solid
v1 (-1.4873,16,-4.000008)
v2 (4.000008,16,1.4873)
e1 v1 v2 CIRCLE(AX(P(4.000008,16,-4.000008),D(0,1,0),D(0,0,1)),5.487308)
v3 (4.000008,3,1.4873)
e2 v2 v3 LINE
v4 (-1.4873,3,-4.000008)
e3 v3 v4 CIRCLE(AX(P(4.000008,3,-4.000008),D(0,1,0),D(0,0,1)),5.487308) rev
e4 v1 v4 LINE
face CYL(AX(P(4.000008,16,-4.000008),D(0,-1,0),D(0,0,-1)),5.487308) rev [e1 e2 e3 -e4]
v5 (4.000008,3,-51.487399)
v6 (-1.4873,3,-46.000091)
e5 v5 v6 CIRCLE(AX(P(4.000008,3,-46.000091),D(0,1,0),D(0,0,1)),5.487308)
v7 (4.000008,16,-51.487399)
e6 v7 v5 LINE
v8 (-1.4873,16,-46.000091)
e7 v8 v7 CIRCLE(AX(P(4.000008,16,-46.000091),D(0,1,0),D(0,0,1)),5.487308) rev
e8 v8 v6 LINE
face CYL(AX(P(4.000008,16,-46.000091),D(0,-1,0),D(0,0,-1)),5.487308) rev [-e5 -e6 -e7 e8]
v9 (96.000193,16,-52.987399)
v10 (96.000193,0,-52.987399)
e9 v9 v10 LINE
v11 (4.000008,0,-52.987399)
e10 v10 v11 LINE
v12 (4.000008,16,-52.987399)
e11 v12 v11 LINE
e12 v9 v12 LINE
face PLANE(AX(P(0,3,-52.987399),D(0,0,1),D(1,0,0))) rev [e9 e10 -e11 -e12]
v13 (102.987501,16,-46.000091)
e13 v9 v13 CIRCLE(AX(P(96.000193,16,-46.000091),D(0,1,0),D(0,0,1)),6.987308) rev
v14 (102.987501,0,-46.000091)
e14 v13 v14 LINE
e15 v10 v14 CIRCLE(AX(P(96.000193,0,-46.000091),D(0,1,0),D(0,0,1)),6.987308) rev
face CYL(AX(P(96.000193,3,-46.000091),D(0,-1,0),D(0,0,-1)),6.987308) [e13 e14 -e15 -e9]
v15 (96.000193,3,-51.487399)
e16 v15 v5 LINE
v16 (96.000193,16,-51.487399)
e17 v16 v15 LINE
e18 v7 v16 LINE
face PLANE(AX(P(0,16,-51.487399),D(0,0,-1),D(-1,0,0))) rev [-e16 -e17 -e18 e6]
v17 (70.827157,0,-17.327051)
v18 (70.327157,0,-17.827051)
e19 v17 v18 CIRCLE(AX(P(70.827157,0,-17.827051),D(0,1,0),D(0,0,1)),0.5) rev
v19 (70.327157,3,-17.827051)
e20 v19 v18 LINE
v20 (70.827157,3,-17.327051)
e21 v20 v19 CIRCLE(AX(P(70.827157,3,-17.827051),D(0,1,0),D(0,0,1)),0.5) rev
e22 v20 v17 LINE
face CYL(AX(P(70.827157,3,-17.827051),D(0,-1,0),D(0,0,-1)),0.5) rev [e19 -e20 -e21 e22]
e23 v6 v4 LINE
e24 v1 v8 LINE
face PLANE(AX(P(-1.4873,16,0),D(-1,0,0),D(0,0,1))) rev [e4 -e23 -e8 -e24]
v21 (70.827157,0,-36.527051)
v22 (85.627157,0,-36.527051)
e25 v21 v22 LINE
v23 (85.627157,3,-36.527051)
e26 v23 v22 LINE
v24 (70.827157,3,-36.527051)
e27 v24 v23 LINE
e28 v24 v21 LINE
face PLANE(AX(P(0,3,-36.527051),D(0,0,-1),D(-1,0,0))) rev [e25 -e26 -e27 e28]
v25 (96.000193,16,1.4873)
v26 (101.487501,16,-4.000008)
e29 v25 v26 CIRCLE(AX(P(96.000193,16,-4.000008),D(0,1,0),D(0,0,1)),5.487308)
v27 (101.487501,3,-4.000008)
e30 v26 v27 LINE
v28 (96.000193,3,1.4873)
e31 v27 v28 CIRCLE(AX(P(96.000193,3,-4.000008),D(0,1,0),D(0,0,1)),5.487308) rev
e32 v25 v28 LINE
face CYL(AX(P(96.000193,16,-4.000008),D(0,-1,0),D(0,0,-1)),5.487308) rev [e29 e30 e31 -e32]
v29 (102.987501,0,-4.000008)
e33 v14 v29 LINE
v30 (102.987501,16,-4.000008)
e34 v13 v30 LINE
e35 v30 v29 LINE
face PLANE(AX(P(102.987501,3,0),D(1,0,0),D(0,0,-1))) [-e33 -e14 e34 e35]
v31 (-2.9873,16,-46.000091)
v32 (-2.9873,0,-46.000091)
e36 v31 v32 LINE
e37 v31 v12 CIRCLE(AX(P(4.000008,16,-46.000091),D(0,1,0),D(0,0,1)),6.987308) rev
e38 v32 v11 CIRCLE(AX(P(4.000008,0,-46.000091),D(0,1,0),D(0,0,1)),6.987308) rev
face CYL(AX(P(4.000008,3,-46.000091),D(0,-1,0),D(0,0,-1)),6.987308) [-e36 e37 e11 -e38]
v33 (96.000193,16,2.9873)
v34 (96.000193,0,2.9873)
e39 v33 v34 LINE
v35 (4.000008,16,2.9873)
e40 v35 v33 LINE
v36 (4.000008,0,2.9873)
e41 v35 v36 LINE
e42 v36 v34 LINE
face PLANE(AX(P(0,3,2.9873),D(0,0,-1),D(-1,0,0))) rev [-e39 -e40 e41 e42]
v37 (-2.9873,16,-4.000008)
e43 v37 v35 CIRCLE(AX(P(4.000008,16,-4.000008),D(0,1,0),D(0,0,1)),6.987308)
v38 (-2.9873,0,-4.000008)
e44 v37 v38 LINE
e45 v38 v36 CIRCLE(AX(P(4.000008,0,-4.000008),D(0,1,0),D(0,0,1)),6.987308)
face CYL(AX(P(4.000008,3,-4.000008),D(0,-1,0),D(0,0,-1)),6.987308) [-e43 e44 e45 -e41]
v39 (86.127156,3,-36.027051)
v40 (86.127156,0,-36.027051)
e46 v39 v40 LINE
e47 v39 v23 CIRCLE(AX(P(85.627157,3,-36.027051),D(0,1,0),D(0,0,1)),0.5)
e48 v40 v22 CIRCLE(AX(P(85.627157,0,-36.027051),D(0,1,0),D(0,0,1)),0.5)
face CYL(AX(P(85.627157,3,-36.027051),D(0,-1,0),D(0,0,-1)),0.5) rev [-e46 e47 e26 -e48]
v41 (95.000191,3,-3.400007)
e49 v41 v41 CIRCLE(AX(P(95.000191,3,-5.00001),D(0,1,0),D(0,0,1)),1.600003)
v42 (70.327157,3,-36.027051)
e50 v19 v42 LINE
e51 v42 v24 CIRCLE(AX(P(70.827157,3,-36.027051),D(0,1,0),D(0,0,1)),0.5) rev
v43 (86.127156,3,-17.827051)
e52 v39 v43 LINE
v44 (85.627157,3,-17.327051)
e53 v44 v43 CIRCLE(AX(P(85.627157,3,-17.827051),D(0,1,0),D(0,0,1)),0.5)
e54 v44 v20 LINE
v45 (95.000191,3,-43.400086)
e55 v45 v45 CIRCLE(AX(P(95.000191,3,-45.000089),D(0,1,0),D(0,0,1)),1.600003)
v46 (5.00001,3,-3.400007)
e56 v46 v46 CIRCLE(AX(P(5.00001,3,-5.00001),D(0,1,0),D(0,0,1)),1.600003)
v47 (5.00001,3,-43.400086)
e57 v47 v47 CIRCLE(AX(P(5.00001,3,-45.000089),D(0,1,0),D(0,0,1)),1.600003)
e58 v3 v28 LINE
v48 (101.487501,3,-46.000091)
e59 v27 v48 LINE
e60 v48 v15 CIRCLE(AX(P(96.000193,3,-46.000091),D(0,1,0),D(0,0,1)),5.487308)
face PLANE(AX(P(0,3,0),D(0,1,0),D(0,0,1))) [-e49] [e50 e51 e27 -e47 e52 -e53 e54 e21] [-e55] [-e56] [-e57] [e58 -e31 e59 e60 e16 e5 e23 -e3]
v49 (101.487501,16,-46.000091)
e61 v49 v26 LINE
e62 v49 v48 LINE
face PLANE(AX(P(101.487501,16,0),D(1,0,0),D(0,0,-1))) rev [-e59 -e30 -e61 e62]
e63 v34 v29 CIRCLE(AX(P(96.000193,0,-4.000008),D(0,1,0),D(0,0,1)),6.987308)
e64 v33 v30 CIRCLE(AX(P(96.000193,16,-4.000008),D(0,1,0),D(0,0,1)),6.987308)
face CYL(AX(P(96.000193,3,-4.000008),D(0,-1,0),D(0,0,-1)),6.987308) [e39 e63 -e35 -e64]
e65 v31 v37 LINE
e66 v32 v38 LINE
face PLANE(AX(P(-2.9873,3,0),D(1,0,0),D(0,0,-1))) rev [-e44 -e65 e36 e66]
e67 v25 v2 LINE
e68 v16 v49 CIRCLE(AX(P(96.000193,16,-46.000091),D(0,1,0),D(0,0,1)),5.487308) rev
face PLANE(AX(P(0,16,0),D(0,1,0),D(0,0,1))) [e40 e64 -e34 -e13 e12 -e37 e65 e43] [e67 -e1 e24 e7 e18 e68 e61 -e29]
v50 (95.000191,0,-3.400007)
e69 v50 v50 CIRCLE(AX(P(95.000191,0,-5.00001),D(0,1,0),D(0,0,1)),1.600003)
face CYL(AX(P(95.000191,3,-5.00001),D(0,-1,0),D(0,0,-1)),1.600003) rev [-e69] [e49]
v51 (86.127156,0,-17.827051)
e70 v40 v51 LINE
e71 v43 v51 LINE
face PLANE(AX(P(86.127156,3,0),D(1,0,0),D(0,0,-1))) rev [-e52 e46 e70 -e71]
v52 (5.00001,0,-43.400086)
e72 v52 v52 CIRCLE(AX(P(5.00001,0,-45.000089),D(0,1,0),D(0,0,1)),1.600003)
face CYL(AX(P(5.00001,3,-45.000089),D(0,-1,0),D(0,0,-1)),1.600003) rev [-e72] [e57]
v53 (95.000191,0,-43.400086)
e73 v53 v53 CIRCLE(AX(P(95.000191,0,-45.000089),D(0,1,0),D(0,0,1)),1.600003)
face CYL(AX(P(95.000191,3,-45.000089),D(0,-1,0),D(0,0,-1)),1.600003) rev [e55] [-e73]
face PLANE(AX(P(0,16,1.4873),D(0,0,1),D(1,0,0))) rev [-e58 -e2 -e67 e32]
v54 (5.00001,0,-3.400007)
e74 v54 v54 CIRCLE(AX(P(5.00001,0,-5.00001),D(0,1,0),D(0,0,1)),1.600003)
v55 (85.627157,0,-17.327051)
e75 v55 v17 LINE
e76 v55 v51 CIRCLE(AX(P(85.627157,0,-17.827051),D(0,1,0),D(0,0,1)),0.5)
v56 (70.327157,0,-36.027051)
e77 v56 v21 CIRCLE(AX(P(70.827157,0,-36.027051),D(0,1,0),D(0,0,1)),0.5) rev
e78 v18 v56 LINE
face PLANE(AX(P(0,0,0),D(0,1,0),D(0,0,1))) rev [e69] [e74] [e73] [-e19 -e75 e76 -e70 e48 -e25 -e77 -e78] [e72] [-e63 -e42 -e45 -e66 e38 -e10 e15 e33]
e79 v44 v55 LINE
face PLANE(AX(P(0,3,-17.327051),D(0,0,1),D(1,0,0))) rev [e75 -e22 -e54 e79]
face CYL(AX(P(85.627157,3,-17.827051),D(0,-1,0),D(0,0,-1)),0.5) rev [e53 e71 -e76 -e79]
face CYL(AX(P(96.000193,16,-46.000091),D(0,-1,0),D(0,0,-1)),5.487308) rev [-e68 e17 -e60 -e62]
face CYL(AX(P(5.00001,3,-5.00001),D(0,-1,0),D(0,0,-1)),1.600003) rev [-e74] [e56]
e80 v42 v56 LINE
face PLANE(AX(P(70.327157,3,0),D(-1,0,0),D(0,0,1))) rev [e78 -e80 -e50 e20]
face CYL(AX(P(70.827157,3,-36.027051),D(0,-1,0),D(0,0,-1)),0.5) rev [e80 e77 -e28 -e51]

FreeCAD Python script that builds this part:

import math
import FreeCAD as App
import Part
import Sketcher

doc = App.newDocument("Part")
body = doc.addObject("PartDesign::Body", "Body")

# Sketch on XZ plane
sketch1 = body.newObject("Sketcher::SketchObject", "Sketch")
sketch1.AttachmentSupport = (doc.getObject("XZ_Plane"), [""])
sketch1.MapMode = "FlatFace"
sketch1.addGeometry(Part.LineSegment(App.Vector(96, -52.99, 0), App.Vector(4, -52.99, 0)), False)
sketch1.addGeometry(Part.ArcOfCircle(Part.Circle(App.Vector(4, -46, 0), App.Vector(0, 0, 1), 6.99), math.radians(-180), math.radians(-90)), False)
sketch1.addGeometry(Part.LineSegment(App.Vector(-2.99, -46, 0), App.Vector(-2.99, -4, 0)), False)
sketch1.addGeometry(Part.ArcOfCircle(Part.Circle(App.Vector(4, -4, 0), App.Vector(0, 0, 1), 6.99), math.radians(90), math.radians(180)), False)
sketch1.addGeometry(Part.LineSegment(App.Vector(4, 2.99, 0), App.Vector(96, 2.99, 0)), False)
sketch1.addGeometry(Part.ArcOfCircle(Part.Circle(App.Vector(96, -4, 0), App.Vector(0, 0, 1), 6.99), math.radians(0), math.radians(90)), False)
sketch1.addGeometry(Part.LineSegment(App.Vector(102.99, -4, 0), App.Vector(102.99, -46, 0)), False)
sketch1.addGeometry(Part.ArcOfCircle(Part.Circle(App.Vector(96, -46, 0), App.Vector(0, 0, 1), 6.99), math.radians(-90), math.radians(0)), False)
sketch1.addGeometry(Part.Circle(App.Vector(5, -5, 0), App.Vector(0, 0, 1), 1.6), False)
sketch1.addGeometry(Part.Circle(App.Vector(95, -5, 0), App.Vector(0, 0, 1), 1.6), False)
sketch1.addGeometry(Part.Circle(App.Vector(5, -45, 0), App.Vector(0, 0, 1), 1.6), False)
sketch1.addGeometry(Part.ArcOfCircle(Part.Circle(App.Vector(85.63, -17.83, 0), App.Vector(0, 0, 1), 0.5), math.radians(0), math.radians(90)), False)
sketch1.addGeometry(Part.LineSegment(App.Vector(85.63, -17.33, 0), App.Vector(70.83, -17.33, 0)), False)
sketch1.addGeometry(Part.ArcOfCircle(Part.Circle(App.Vector(70.83, -17.83, 0), App.Vector(0, 0, 1), 0.5), math.radians(90), math.radians(180)), False)
sketch1.addGeometry(Part.LineSegment(App.Vector(70.33, -17.83, 0), App.Vector(70.33, -36.03, 0)), False)
sketch1.addGeometry(Part.ArcOfCircle(Part.Circle(App.Vector(70.83, -36.03, 0), App.Vector(0, 0, 1), 0.5), math.radians(180), math.radians(270)), False)
sketch1.addGeometry(Part.LineSegment(App.Vector(70.83, -36.53, 0), App.Vector(85.63, -36.53, 0)), False)
sketch1.addGeometry(Part.ArcOfCircle(Part.Circle(App.Vector(85.63, -36.03, 0), App.Vector(0, 0, 1), 0.5), math.radians(-90), math.radians(0)), False)
sketch1.addGeometry(Part.LineSegment(App.Vector(86.13, -36.03, 0), App.Vector(86.13, -17.83, 0)), False)
sketch1.addGeometry(Part.Circle(App.Vector(95, -45, 0), App.Vector(0, 0, 1), 1.6), False)
sketch1.addConstraint(Sketcher.Constraint("Tangent", 0, 2, 1, 2))
sketch1.addConstraint(Sketcher.Constraint("Tangent", 1, 1, 2, 1))
sketch1.addConstraint(Sketcher.Constraint("Tangent", 2, 2, 3, 2))
sketch1.addConstraint(Sketcher.Constraint("Tangent", 3, 1, 4, 1))
sketch1.addConstraint(Sketcher.Constraint("Tangent", 4, 2, 5, 2))
sketch1.addConstraint(Sketcher.Constraint("Tangent", 5, 1, 6, 1))
sketch1.addConstraint(Sketcher.Constraint("Tangent", 6, 2, 7, 2))
sketch1.addConstraint(Sketcher.Constraint("Tangent", 7, 1, 0, 1))
sketch1.addConstraint(Sketcher.Constraint("Tangent", 11, 2, 12, 1))
sketch1.addConstraint(Sketcher.Constraint("Tangent", 12, 2, 13, 1))
sketch1.addConstraint(Sketcher.Constraint("Tangent", 13, 2, 14, 1))
sketch1.addConstraint(Sketcher.Constraint("Tangent", 14, 2, 15, 1))
sketch1.addConstraint(Sketcher.Constraint("Tangent", 15, 2, 16, 1))
sketch1.addConstraint(Sketcher.Constraint("Tangent", 16, 2, 17, 1))
sketch1.addConstraint(Sketcher.Constraint("Tangent", 17, 2, 18, 1))
sketch1.addConstraint(Sketcher.Constraint("Tangent", 18, 2, 11, 1))
sketch1.addConstraint(Sketcher.Constraint("Horizontal", 0))
sketch1.addConstraint(Sketcher.Constraint("Vertical", 2))
sketch1.addConstraint(Sketcher.Constraint("Horizontal", 4))
sketch1.addConstraint(Sketcher.Constraint("Vertical", 6))
sketch1.addConstraint(Sketcher.Constraint("Horizontal", 12))
sketch1.addConstraint(Sketcher.Constraint("Vertical", 14))
sketch1.addConstraint(Sketcher.Constraint("Horizontal", 16))
sketch1.addConstraint(Sketcher.Constraint("Vertical", 18))
sketch1.addConstraint(Sketcher.Constraint("Equal", 1, 3))
sketch1.addConstraint(Sketcher.Constraint("Equal", 3, 5))
sketch1.addConstraint(Sketcher.Constraint("Equal", 5, 7))
sketch1.addConstraint(Sketcher.Constraint("Equal", 8, 9))
sketch1.addConstraint(Sketcher.Constraint("Equal", 9, 10))
sketch1.addConstraint(Sketcher.Constraint("Equal", 11, 13))
sketch1.addConstraint(Sketcher.Constraint("Equal", 13, 15))
sketch1.addConstraint(Sketcher.Constraint("Equal", 15, 17))
sketch1.addConstraint(Sketcher.Constraint("Equal", 10, 19))
sketch1.addConstraint(Sketcher.Constraint("Horizontal", 8, 3, 9, 3))
sketch1.addConstraint(Sketcher.Constraint("Horizontal", 10, 3, 19, 3))
sketch1.addConstraint(Sketcher.Constraint("Vertical", 8, 3, 10, 3))
sketch1.addConstraint(Sketcher.Constraint("Vertical", 9, 3, 19, 3))
sketch1.addConstraint(Sketcher.Constraint("Radius", 11, 0.5))
sketch1.addConstraint(Sketcher.Constraint("DistanceX", 12, 2, 12, 1, 14.8))
sketch1.addConstraint(Sketcher.Constraint("DistanceY", 14, 2, 14, 1, 18.2))
sketch1.addConstraint(Sketcher.Constraint("Diameter", 8, 3.200006))
sketch1.addConstraint(Sketcher.Constraint("Radius", 1, 6.987308))
sketch1.addConstraint(Sketcher.Constraint("DistanceY", 0, 2, -1, 1, 52.987399))
sketch1.addConstraint(Sketcher.Constraint("DistanceX", 1, 1, -1, 1, 2.9873))
sketch1.addConstraint(Sketcher.Constraint("DistanceY", -1, 1, 3, 1, 2.9873))
sketch1.addConstraint(Sketcher.Constraint("DistanceX", -1, 1, 5, 1, 102.987501))
sketch1.addConstraint(Sketcher.Constraint("DistanceX", -1, 1, 8, 3, 5.00001))
sketch1.addConstraint(Sketcher.Constraint("DistanceY", 8, 3, -1, 1, 5.00001))
sketch1.addConstraint(Sketcher.Constraint("DistanceX", -1, 1, 9, 3, 95.000191))
sketch1.addConstraint(Sketcher.Constraint("DistanceY", 10, 3, -1, 1, 45.000089))
sketch1.addConstraint(Sketcher.Constraint("DistanceY", 11, 3, -1, 1, 17.827051))
sketch1.addConstraint(Sketcher.Constraint("DistanceX", 3, 3, 11, 3, 81.627149))
pad1 = body.newObject("PartDesign::Pad", "Pad")
pad1.Profile = sketch1
pad1.Length = 3
pad1.Reversed = True

# Sketch on XZ plane
sketch2 = body.newObject("Sketcher::SketchObject", "Sketch001")
sketch2.AttachmentSupport = (doc.getObject("XZ_Plane"), [""])
sketch2.MapMode = "FlatFace"
sketch2.addGeometry(Part.ArcOfCircle(Part.Circle(App.Vector(4, -4, 0), App.Vector(0, 0, 1), 7), math.radians(90), math.radians(180)), False)
sketch2.addGeometry(Part.LineSegment(App.Vector(4, 3, 0), App.Vector(96, 3, 0)), False)
sketch2.addGeometry(Part.ArcOfCircle(Part.Circle(App.Vector(96, -4, 0), App.Vector(0, 0, 1), 7), math.radians(0), math.radians(90)), False)
sketch2.addGeometry(Part.LineSegment(App.Vector(103, -4, 0), App.Vector(103, -46, 0)), False)
sketch2.addGeometry(Part.ArcOfCircle(Part.Circle(App.Vector(96, -46, 0), App.Vector(0, 0, 1), 7), math.radians(-90), math.radians(0)), False)
sketch2.addGeometry(Part.LineSegment(App.Vector(96, -53, 0), App.Vector(4, -53, 0)), False)
sketch2.addGeometry(Part.ArcOfCircle(Part.Circle(App.Vector(4, -46, 0), App.Vector(0, 0, 1), 7), math.radians(-180), math.radians(-90)), False)
sketch2.addGeometry(Part.LineSegment(App.Vector(-3, -46, 0), App.Vector(-3, -4, 0)), False)
sketch2.addGeometry(Part.ArcOfCircle(Part.Circle(App.Vector(4, -46, 0), App.Vector(0, 0, 1), 5), math.radians(180), math.radians(270)), False)
sketch2.addGeometry(Part.LineSegment(App.Vector(4, -51, 0), App.Vector(96, -51, 0)), False)
sketch2.addGeometry(Part.ArcOfCircle(Part.Circle(App.Vector(96, -46, 0), App.Vector(0, 0, 1), 5), math.radians(-90), math.radians(0)), False)
sketch2.addGeometry(Part.LineSegment(App.Vector(101, -46, 0), App.Vector(101, -4, 0)), False)
sketch2.addGeometry(Part.ArcOfCircle(Part.Circle(App.Vector(96, -4, 0), App.Vector(0, 0, 1), 5), math.radians(0), math.radians(90)), False)
sketch2.addGeometry(Part.LineSegment(App.Vector(96, 1, 0), App.Vector(4, 1, 0)), False)
sketch2.addGeometry(Part.ArcOfCircle(Part.Circle(App.Vector(4, -4, 0), App.Vector(0, 0, 1), 5), math.radians(90), math.radians(180)), False)
sketch2.addGeometry(Part.LineSegment(App.Vector(-1, -4, 0), App.Vector(-1, -46, 0)), False)
sketch2.addConstraint(Sketcher.Constraint("Tangent", 0, 1, 1, 1))
sketch2.addConstraint(Sketcher.Constraint("Tangent", 1, 2, 2, 2))
sketch2.addConstraint(Sketcher.Constraint("Tangent", 2, 1, 3, 1))
sketch2.addConstraint(Sketcher.Constraint("Tangent", 3, 2, 4, 2))
sketch2.addConstraint(Sketcher.Constraint("Tangent", 4, 1, 5, 1))
sketch2.addConstraint(Sketcher.Constraint("Tangent", 5, 2, 6, 2))
sketch2.addConstraint(Sketcher.Constraint("Tangent", 6, 1, 7, 1))
sketch2.addConstraint(Sketcher.Constraint("Tangent", 7, 2, 0, 2))
sketch2.addConstraint(Sketcher.Constraint("Tangent", 8, 2, 9, 1))
sketch2.addConstraint(Sketcher.Constraint("Tangent", 9, 2, 10, 1))
sketch2.addConstraint(Sketcher.Constraint("Tangent", 10, 2, 11, 1))
sketch2.addConstraint(Sketcher.Constraint("Tangent", 11, 2, 12, 1))
sketch2.addConstraint(Sketcher.Constraint("Tangent", 12, 2, 13, 1))
sketch2.addConstraint(Sketcher.Constraint("Tangent", 13, 2, 14, 1))
sketch2.addConstraint(Sketcher.Constraint("Tangent", 14, 2, 15, 1))
sketch2.addConstraint(Sketcher.Constraint("Tangent", 15, 2, 8, 1))
sketch2.addConstraint(Sketcher.Constraint("Horizontal", 1))
sketch2.addConstraint(Sketcher.Constraint("Vertical", 3))
sketch2.addConstraint(Sketcher.Constraint("Horizontal", 5))
sketch2.addConstraint(Sketcher.Constraint("Vertical", 7))
sketch2.addConstraint(Sketcher.Constraint("Horizontal", 9))
sketch2.addConstraint(Sketcher.Constraint("Vertical", 11))
sketch2.addConstraint(Sketcher.Constraint("Horizontal", 13))
sketch2.addConstraint(Sketcher.Constraint("Vertical", 15))
sketch2.addConstraint(Sketcher.Constraint("Coincident", 8, 3, 6, 3))
sketch2.addConstraint(Sketcher.Constraint("Coincident", 10, 3, 4, 3))
sketch2.addConstraint(Sketcher.Constraint("Coincident", 12, 3, 2, 3))
sketch2.addConstraint(Sketcher.Constraint("Equal", 0, 2))
sketch2.addConstraint(Sketcher.Constraint("Equal", 2, 4))
sketch2.addConstraint(Sketcher.Constraint("Equal", 4, 6))
sketch2.addConstraint(Sketcher.Constraint("Equal", 12, 14))
sketch2.addConstraint(Sketcher.Constraint("DistanceY", 5, 2, 8, 2, 1.5))
sketch2.addConstraint(Sketcher.Constraint("Radius", 0, 6.987308))
sketch2.addConstraint(Sketcher.Constraint("DistanceY", -1, 1, 0, 1, 2.9873))
sketch2.addConstraint(Sketcher.Constraint("DistanceX", -1, 1, 2, 1, 102.987501))
sketch2.addConstraint(Sketcher.Constraint("DistanceY", 4, 1, -1, 1, 52.987399))
sketch2.addConstraint(Sketcher.Constraint("DistanceX", 6, 1, -1, 1, 2.9873))
pad2 = body.newObject("PartDesign::Pad", "Pad001")
pad2.Profile = sketch2
pad2.Length = 16
pad2.Reversed = True

doc.recompute()
